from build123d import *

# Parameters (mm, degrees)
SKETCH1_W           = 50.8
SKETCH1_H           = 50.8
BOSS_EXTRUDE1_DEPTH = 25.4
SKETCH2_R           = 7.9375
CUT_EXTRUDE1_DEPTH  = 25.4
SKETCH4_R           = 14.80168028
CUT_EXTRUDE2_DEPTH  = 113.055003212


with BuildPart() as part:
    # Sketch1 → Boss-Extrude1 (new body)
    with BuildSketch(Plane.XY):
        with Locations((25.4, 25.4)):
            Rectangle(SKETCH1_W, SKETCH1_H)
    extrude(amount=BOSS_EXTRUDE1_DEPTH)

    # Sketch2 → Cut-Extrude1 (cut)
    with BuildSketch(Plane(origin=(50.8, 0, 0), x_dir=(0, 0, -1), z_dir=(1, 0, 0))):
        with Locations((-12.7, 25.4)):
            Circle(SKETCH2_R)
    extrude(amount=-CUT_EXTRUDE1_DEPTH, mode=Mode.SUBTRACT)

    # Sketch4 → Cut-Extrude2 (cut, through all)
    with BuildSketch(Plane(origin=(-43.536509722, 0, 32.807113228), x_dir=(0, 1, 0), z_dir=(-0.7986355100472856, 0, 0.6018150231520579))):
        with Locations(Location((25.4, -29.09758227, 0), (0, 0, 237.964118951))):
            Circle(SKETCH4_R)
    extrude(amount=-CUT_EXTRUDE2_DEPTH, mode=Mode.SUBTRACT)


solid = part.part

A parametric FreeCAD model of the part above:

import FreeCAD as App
import Part
import Sketcher
from FreeCAD import Vector
Q = App.Units.Quantity

doc = App.newDocument("Part")
body = doc.addObject("PartDesign::Body", "Body")

sketch1 = body.newObject("Sketcher::SketchObject", "Sketch")
sketch1.AttachmentSupport = (doc.getObject("XY_Plane"), [""])
sketch1.MapMode = "FlatFace"
sketch1.addGeometry([
    Part.LineSegment(Vector(0, 51, 0), Vector(0, 0, 0)),
    Part.LineSegment(Vector(0, 0, 0), Vector(51, 0, 0)),
    Part.LineSegment(Vector(51, 0, 0), Vector(51, 51, 0)),
    Part.LineSegment(Vector(51, 51, 0), Vector(0, 51, 0)),
], False)
sketch1.addConstraint([
    Sketcher.Constraint("Coincident", 0, 2, 1, 1),
    Sketcher.Constraint("Coincident", 1, 2, 2, 1),
    Sketcher.Constraint("Coincident", 2, 2, 3, 1),
    Sketcher.Constraint("Coincident", 3, 2, 0, 1),
    Sketcher.Constraint("Vertical", 0),
    Sketcher.Constraint("Horizontal", 1),
    Sketcher.Constraint("Vertical", 2),
    Sketcher.Constraint("Horizontal", 3),
    Sketcher.Constraint("Coincident", 0, 2, -1, 1),
    Sketcher.Constraint("Equal", 3, 0),
    Sketcher.Constraint("DistanceX", 1, 1, 1, 2, Q("2 in")),
])
pad1 = body.newObject("PartDesign::Pad", "Pad")
pad1.Profile = sketch1
pad1.Length = Q("1 in")

sketch2 = body.newObject("Sketcher::SketchObject", "Sketch001")
sketch2.AttachmentSupport = (doc.getObject("YZ_Plane"), [""])
sketch2.MapMode = "FlatFace"
sketch2.AttachmentOffset = App.Placement(Vector(0, 0, 2 * 25.4), App.Rotation())
sketch2.addGeometry(Part.Circle(Vector(25, 13, 0), Vector(0, 0, 1), 8), False)
sketch2.addConstraint([
    Sketcher.Constraint("Diameter", 0, Q("0.625 in")),
    Sketcher.Constraint("DistanceX", -1, 1, 0, 3, Q("1 in")),
    Sketcher.Constraint("DistanceY", -1, 1, 0, 3, Q("0.5 in")),
])
pocket1 = body.newObject("PartDesign::Pocket", "Pocket")
pocket1.Profile = sketch2
pocket1.Length = Q("1 in")

sketch3 = body.newObject("Sketcher::SketchObject", "Sketch002")
sketch3.Placement = App.Placement(Vector(-43.53651, 0, 32.807113), App.Rotation(Vector(0, 1, 0), Vector(-0.601815023, 0, -0.79863551), Vector(-0.79863551, 0, 0.601815023), "ZXY"))
sketch3.addGeometry(Part.Circle(Vector(25, -29, 0), Vector(0, 0, 1), 15), False)
sketch3.addConstraint([
    Sketcher.Constraint("DistanceX", -1, 1, 0, 3, Q("1 in")),
    Sketcher.Constraint("Diameter", 0, 29.603361),
    Sketcher.Constraint("DistanceY", 0, 3, -1, 1, 29.097582),
])
pocket2 = body.newObject("PartDesign::Pocket", "Pocket001")
pocket2.Profile = sketch3
pocket2.Type = "ThroughAll"

doc.recompute()
